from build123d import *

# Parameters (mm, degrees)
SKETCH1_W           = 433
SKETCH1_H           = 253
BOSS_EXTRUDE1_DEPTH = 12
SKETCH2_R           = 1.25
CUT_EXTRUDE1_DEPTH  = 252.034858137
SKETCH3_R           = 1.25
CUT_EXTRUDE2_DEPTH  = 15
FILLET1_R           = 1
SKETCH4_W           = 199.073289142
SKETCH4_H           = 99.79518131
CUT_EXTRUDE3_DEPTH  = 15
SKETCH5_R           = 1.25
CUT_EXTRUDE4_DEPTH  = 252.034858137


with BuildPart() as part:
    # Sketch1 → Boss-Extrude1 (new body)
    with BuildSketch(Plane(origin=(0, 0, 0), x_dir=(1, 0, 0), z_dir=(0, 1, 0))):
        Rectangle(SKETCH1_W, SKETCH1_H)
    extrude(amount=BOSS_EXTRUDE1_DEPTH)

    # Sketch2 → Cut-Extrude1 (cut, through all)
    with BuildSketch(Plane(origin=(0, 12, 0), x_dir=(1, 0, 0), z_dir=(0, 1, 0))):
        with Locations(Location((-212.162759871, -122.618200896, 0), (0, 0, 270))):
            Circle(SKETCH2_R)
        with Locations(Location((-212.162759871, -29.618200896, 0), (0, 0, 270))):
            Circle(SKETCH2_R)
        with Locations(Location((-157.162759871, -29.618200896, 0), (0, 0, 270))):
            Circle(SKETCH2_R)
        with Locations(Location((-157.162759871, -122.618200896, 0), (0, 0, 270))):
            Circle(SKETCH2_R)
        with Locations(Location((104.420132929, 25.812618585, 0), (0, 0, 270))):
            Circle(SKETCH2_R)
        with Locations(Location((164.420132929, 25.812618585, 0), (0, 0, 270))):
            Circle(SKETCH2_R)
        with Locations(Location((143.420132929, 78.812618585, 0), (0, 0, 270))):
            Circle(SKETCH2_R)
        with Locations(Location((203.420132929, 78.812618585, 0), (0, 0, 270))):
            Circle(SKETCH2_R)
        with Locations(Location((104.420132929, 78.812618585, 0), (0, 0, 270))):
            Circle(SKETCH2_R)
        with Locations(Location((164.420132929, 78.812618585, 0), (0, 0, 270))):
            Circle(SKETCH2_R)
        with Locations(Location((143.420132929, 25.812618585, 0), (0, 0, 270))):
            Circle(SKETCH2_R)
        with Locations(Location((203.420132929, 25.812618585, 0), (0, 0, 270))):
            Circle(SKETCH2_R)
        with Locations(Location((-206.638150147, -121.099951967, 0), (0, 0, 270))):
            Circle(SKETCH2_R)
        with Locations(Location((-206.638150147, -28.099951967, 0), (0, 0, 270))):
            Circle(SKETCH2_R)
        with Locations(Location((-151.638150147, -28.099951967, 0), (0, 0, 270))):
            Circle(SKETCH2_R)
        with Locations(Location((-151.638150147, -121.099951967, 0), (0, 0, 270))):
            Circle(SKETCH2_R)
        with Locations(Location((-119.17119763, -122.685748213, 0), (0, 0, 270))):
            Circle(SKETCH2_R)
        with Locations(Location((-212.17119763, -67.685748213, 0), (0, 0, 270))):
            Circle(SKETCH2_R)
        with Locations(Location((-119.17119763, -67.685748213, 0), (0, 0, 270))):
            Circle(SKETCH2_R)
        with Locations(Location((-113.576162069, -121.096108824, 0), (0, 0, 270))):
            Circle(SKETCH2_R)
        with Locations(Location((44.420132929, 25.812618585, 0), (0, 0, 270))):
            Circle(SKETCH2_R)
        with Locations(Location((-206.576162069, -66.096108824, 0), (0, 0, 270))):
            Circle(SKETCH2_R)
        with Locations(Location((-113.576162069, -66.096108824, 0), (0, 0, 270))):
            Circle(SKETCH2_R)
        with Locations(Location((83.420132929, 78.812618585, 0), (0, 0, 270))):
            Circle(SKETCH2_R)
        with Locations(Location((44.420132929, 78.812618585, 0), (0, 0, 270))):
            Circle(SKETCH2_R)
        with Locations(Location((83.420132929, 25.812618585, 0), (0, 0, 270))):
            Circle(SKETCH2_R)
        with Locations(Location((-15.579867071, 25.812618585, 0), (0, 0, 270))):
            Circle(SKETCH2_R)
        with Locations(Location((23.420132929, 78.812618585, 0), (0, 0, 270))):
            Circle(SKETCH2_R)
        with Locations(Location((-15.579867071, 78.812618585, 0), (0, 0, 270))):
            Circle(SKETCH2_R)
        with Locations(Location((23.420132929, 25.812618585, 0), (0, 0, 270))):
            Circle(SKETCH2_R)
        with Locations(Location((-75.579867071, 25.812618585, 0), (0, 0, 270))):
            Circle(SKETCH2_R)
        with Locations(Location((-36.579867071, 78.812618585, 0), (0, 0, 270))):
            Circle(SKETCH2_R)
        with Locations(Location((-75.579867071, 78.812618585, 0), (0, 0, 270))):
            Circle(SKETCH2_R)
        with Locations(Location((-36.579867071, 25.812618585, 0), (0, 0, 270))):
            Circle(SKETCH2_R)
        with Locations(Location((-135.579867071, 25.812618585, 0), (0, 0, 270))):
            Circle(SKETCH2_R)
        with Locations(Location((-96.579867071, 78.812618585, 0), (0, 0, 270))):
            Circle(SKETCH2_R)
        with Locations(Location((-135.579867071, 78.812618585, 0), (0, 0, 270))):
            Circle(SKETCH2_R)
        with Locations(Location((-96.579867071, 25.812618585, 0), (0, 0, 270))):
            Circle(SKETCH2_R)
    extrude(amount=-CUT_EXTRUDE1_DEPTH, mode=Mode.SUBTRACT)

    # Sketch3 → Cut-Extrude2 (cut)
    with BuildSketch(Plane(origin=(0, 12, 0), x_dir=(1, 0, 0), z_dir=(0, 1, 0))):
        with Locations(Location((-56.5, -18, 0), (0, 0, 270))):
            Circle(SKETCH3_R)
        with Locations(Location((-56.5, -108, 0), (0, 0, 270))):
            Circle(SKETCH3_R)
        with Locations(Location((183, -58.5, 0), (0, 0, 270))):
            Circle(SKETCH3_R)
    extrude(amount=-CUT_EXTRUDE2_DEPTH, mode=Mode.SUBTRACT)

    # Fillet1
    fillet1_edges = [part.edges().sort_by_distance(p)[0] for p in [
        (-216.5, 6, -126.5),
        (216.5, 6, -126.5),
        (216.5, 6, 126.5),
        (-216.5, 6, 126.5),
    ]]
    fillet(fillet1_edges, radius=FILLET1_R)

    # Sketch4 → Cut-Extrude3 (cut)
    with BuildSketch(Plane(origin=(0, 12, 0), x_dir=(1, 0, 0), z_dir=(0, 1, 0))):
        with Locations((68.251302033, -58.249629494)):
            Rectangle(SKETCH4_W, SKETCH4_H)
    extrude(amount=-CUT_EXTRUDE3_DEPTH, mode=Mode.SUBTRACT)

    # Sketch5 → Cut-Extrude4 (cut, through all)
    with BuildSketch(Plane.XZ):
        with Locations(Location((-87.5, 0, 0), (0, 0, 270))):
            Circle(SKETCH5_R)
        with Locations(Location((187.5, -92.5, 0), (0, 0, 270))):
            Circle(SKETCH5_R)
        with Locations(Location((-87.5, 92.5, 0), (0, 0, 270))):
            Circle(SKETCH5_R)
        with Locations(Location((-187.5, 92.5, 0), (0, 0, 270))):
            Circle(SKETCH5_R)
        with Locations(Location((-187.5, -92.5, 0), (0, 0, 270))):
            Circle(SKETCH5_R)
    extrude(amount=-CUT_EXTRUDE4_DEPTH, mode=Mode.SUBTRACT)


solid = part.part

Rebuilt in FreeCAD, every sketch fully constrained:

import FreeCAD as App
import Part
import Sketcher
Q = App.Units.Quantity


def edges_at(feature, points):
    """Names of the edges that pass closest to the given points."""
    edges = feature.Shape.Edges
    near = lambda p: min(range(len(edges)), key=lambda i: edges[i].distToShape(Part.Vertex(*p))[0])
    return sorted({f"Edge{near(p) + 1}" for p in points})


def add_polygon(sketch, points):
    """Adds a closed chain of lines whose ends are joined by coincident constraints."""
    first, n = sketch.GeometryCount, len(points)
    for a, b in zip(points, points[1:] + points[:1]):
        sketch.addGeometry(Part.LineSegment(App.Vector(*a, 0), App.Vector(*b, 0)), False)
    for i in range(n):
        sketch.addConstraint(Sketcher.Constraint("Coincident", first + i, 2, first + (i + 1) % n, 1))

doc = App.newDocument("Part")
body = doc.addObject("PartDesign::Body", "Body")

# Sketch on XZ plane
sketch1 = body.newObject("Sketcher::SketchObject", "Sketch")
sketch1.AttachmentSupport = (doc.getObject("XZ_Plane"), [""])
sketch1.MapMode = "FlatFace"
add_polygon(sketch1, [(-216, -126), (-216, 126), (216, 126), (216, -126)])  # lines 0-3
sketch1.addConstraint([
    Sketcher.Constraint("Vertical", 0),
    Sketcher.Constraint("Horizontal", 1),
    Sketcher.Constraint("Vertical", 2),
    Sketcher.Constraint("Horizontal", 3),
    Sketcher.Constraint("Symmetric", 0, 2, 2, 2, -1, 1),
    Sketcher.Constraint("DistanceX", 1, 1, 1, 2, Q("433 mm")),
    Sketcher.Constraint("DistanceY", 0, 1, 0, 2, Q("253 mm")),
])
pad1 = body.newObject("PartDesign::Pad", "Pad")
pad1.Profile = sketch1
pad1.Length = 12
pad1.Reversed = True

# Sketch on XZ plane
sketch2 = body.newObject("Sketcher::SketchObject", "Sketch001")
sketch2.AttachmentSupport = (doc.getObject("XZ_Plane"), [""])
sketch2.MapMode = "FlatFace"
sketch2.AttachmentOffset = App.Placement(App.Vector(0, 0, -12), App.Rotation())
sketch2.addGeometry([
    Part.Circle(App.Vector(-212.2, 122.6, 0), App.Vector(0, 0, 1), 1.2),  # 0
    Part.Circle(App.Vector(-212.2, 29.6, 0), App.Vector(0, 0, 1), 1.2),  # 1
    Part.Circle(App.Vector(-157.2, 29.6, 0), App.Vector(0, 0, 1), 1.2),  # 2
    Part.Circle(App.Vector(-157.2, 122.6, 0), App.Vector(0, 0, 1), 1.2),  # 3
    Part.Circle(App.Vector(104.4, -25.8, 0), App.Vector(0, 0, 1), 1.2),  # 4
    Part.Circle(App.Vector(164.4, -25.8, 0), App.Vector(0, 0, 1), 1.2),  # 5
    Part.Circle(App.Vector(143.4, -78.8, 0), App.Vector(0, 0, 1), 1.2),  # 6
    Part.Circle(App.Vector(203.4, -78.8, 0), App.Vector(0, 0, 1), 1.2),  # 7
    Part.Circle(App.Vector(104.4, -78.8, 0), App.Vector(0, 0, 1), 1.2),  # 8
    Part.Circle(App.Vector(164.4, -78.8, 0), App.Vector(0, 0, 1), 1.2),  # 9
    Part.Circle(App.Vector(143.4, -25.8, 0), App.Vector(0, 0, 1), 1.2),  # 10
    Part.Circle(App.Vector(203.4, -25.8, 0), App.Vector(0, 0, 1), 1.2),  # 11
    Part.Circle(App.Vector(-206.6, 121.1, 0), App.Vector(0, 0, 1), 1.2),  # 12
    Part.Circle(App.Vector(-206.6, 28.1, 0), App.Vector(0, 0, 1), 1.2),  # 13
    Part.Circle(App.Vector(-151.6, 28.1, 0), App.Vector(0, 0, 1), 1.2),  # 14
    Part.Circle(App.Vector(-151.6, 121.1, 0), App.Vector(0, 0, 1), 1.2),  # 15
    Part.Circle(App.Vector(-119.2, 122.7, 0), App.Vector(0, 0, 1), 1.2),  # 16
    Part.Circle(App.Vector(-212.2, 67.7, 0), App.Vector(0, 0, 1), 1.2),  # 17
    Part.Circle(App.Vector(-119.2, 67.7, 0), App.Vector(0, 0, 1), 1.2),  # 18
    Part.Circle(App.Vector(-113.6, 121.1, 0), App.Vector(0, 0, 1), 1.2),  # 19
    Part.Circle(App.Vector(44.4, -25.8, 0), App.Vector(0, 0, 1), 1.2),  # 20
    Part.Circle(App.Vector(-206.6, 66.1, 0), App.Vector(0, 0, 1), 1.2),  # 21
    Part.Circle(App.Vector(-113.6, 66.1, 0), App.Vector(0, 0, 1), 1.2),  # 22
    Part.Circle(App.Vector(83.4, -78.8, 0), App.Vector(0, 0, 1), 1.2),  # 23
    Part.Circle(App.Vector(44.4, -78.8, 0), App.Vector(0, 0, 1), 1.2),  # 24
    Part.Circle(App.Vector(83.4, -25.8, 0), App.Vector(0, 0, 1), 1.2),  # 25
    Part.Circle(App.Vector(-15.6, -25.8, 0), App.Vector(0, 0, 1), 1.2),  # 26
    Part.Circle(App.Vector(23.4, -78.8, 0), App.Vector(0, 0, 1), 1.2),  # 27
    Part.Circle(App.Vector(-15.6, -78.8, 0), App.Vector(0, 0, 1), 1.2),  # 28
    Part.Circle(App.Vector(23.4, -25.8, 0), App.Vector(0, 0, 1), 1.2),  # 29
    Part.Circle(App.Vector(-75.6, -25.8, 0), App.Vector(0, 0, 1), 1.2),  # 30
    Part.Circle(App.Vector(-36.6, -78.8, 0), App.Vector(0, 0, 1), 1.2),  # 31
    Part.Circle(App.Vector(-75.6, -78.8, 0), App.Vector(0, 0, 1), 1.2),  # 32
    Part.Circle(App.Vector(-36.6, -25.8, 0), App.Vector(0, 0, 1), 1.2),  # 33
    Part.Circle(App.Vector(-135.6, -25.8, 0), App.Vector(0, 0, 1), 1.2),  # 34
    Part.Circle(App.Vector(-96.6, -78.8, 0), App.Vector(0, 0, 1), 1.2),  # 35
    Part.Circle(App.Vector(-135.6, -78.8, 0), App.Vector(0, 0, 1), 1.2),  # 36
    Part.Circle(App.Vector(-96.6, -25.8, 0), App.Vector(0, 0, 1), 1.2),  # 37
], False)
sketch2.addConstraint([
    Sketcher.Constraint("Equal", 0, 1),
    Sketcher.Constraint("Equal", 1, 2),
    Sketcher.Constraint("Equal", 2, 3),
    Sketcher.Constraint("Equal", 3, 4),
    Sketcher.Constraint("Equal", 4, 5),
    Sketcher.Constraint("Equal", 5, 6),
    Sketcher.Constraint("Equal", 6, 7),
    Sketcher.Constraint("Equal", 7, 8),
    Sketcher.Constraint("Equal", 8, 9),
    Sketcher.Constraint("Equal", 9, 10),
    Sketcher.Constraint("Equal", 10, 11),
    Sketcher.Constraint("Equal", 11, 12),
    Sketcher.Constraint("Equal", 12, 13),
    Sketcher.Constraint("Equal", 13, 14),
    Sketcher.Constraint("Equal", 14, 15),
    Sketcher.Constraint("Equal", 15, 16),
    Sketcher.Constraint("Equal", 16, 17),
    Sketcher.Constraint("Equal", 17, 18),
    Sketcher.Constraint("Equal", 18, 19),
    Sketcher.Constraint("Equal", 19, 20),
    Sketcher.Constraint("Equal", 20, 21),
    Sketcher.Constraint("Equal", 21, 22),
    Sketcher.Constraint("Equal", 22, 23),
    Sketcher.Constraint("Equal", 23, 24),
    Sketcher.Constraint("Equal", 24, 25),
    Sketcher.Constraint("Equal", 25, 26),
    Sketcher.Constraint("Equal", 26, 27),
    Sketcher.Constraint("Equal", 27, 28),
    Sketcher.Constraint("Equal", 28, 29),
    Sketcher.Constraint("Equal", 29, 30),
    Sketcher.Constraint("Equal", 30, 31),
    Sketcher.Constraint("Equal", 31, 32),
    Sketcher.Constraint("Equal", 32, 33),
    Sketcher.Constraint("Equal", 33, 34),
    Sketcher.Constraint("Equal", 34, 35),
    Sketcher.Constraint("Equal", 35, 36),
    Sketcher.Constraint("Equal", 36, 37),
    Sketcher.Constraint("Horizontal", 1, 3, 2, 3),
    Sketcher.Constraint("Horizontal", 0, 3, 3, 3),
    Sketcher.Constraint("Horizontal", 4, 3, 5, 3),
    Sketcher.Constraint("Horizontal", 6, 3, 7, 3),
    Sketcher.Constraint("Horizontal", 7, 3, 8, 3),
    Sketcher.Constraint("Horizontal", 8, 3, 9, 3),
    Sketcher.Constraint("Horizontal", 5, 3, 10, 3),
    Sketcher.Constraint("Horizontal", 10, 3, 11, 3),
    Sketcher.Constraint("Horizontal", 13, 3, 14, 3),
    Sketcher.Constraint("Horizontal", 12, 3, 15, 3),
    Sketcher.Constraint("Horizontal", 17, 3, 18, 3),
    Sketcher.Constraint("Horizontal", 11, 3, 20, 3),
    Sketcher.Constraint("Horizontal", 21, 3, 22, 3),
    Sketcher.Constraint("Horizontal", 9, 3, 23, 3),
    Sketcher.Constraint("Horizontal", 23, 3, 24, 3),
    Sketcher.Constraint("Horizontal", 20, 3, 25, 3),
    Sketcher.Constraint("Horizontal", 25, 3, 26, 3),
    Sketcher.Constraint("Horizontal", 24, 3, 27, 3),
    Sketcher.Constraint("Horizontal", 27, 3, 28, 3),
    Sketcher.Constraint("Horizontal", 26, 3, 29, 3),
    Sketcher.Constraint("Horizontal", 29, 3, 30, 3),
    Sketcher.Constraint("Horizontal", 28, 3, 31, 3),
    Sketcher.Constraint("Horizontal", 31, 3, 32, 3),
    Sketcher.Constraint("Horizontal", 30, 3, 33, 3),
    Sketcher.Constraint("Horizontal", 33, 3, 34, 3),
    Sketcher.Constraint("Horizontal", 32, 3, 35, 3),
    Sketcher.Constraint("Horizontal", 35, 3, 36, 3),
    Sketcher.Constraint("Horizontal", 34, 3, 37, 3),
    Sketcher.Constraint("Vertical", 0, 3, 1, 3),
    Sketcher.Constraint("Vertical", 2, 3, 3, 3),
    Sketcher.Constraint("Vertical", 4, 3, 8, 3),
    Sketcher.Constraint("Vertical", 5, 3, 9, 3),
    Sketcher.Constraint("Vertical", 6, 3, 10, 3),
    Sketcher.Constraint("Vertical", 7, 3, 11, 3),
    Sketcher.Constraint("Vertical", 12, 3, 13, 3),
    Sketcher.Constraint("Vertical", 14, 3, 15, 3),
    Sketcher.Constraint("Vertical", 16, 3, 18, 3),
    Sketcher.Constraint("Vertical", 19, 3, 22, 3),
    Sketcher.Constraint("Vertical", 20, 3, 24, 3),
    Sketcher.Constraint("Vertical", 23, 3, 25, 3),
    Sketcher.Constraint("Vertical", 26, 3, 28, 3),
    Sketcher.Constraint("Vertical", 27, 3, 29, 3),
    Sketcher.Constraint("Vertical", 30, 3, 32, 3),
    Sketcher.Constraint("Vertical", 31, 3, 33, 3),
    Sketcher.Constraint("Vertical", 34, 3, 36, 3),
    Sketcher.Constraint("Vertical", 35, 3, 37, 3),
    Sketcher.Constraint("Diameter", 0, Q("2.5 mm")),
    Sketcher.Constraint("DistanceY", 1, 3, 0, 3, Q("93 mm")),
    Sketcher.Constraint("DistanceX", 1, 3, 2, 3, Q("55 mm")),
    Sketcher.Constraint("DistanceX", 4, 3, 5, 3, Q("60 mm")),
    Sketcher.Constraint("DistanceX", 6, 3, 5, 3, Q("21 mm")),
    Sketcher.Constraint("DistanceY", 6, 3, 5, 3, Q("53 mm")),
    Sketcher.Constraint("DistanceX", 6, 3, 7, 3, Q("60 mm")),
    Sketcher.Constraint("DistanceY", 13, 3, 12, 3, Q("93 mm")),
    Sketcher.Constraint("DistanceX", 13, 3, 14, 3, Q("55 mm")),
    Sketcher.Constraint("DistanceY", 18, 3, 16, 3, Q("55 mm")),
    Sketcher.Constraint("DistanceX", 20, 3, 4, 3, Q("60 mm")),
    Sketcher.Constraint("DistanceY", 22, 3, 19, 3, Q("55 mm")),
    Sketcher.Constraint("DistanceX", 23, 3, 8, 3, Q("21 mm")),
    Sketcher.Constraint("DistanceX", 26, 3, 20, 3, Q("60 mm")),
    Sketcher.Constraint("DistanceX", 27, 3, 24, 3, Q("21 mm")),
    Sketcher.Constraint("DistanceX", 30, 3, 26, 3, Q("60 mm")),
    Sketcher.Constraint("DistanceX", 31, 3, 28, 3, Q("21 mm")),
    Sketcher.Constraint("DistanceX", 34, 3, 30, 3, Q("60 mm")),
    Sketcher.Constraint("DistanceX", 35, 3, 32, 3, Q("21 mm")),
    Sketcher.Constraint("DistanceY", -1, 1, 0, 3, Q("122.618201 mm")),
    Sketcher.Constraint("DistanceX", 0, 3, -1, 1, Q("212.16276 mm")),
    Sketcher.Constraint("DistanceY", 4, 3, -1, 1, Q("25.812619 mm")),
    Sketcher.Constraint("DistanceX", 12, 3, -1, 1, Q("206.63815 mm")),
    Sketcher.Constraint("DistanceY", -1, 1, 12, 3, Q("121.099952 mm")),
    Sketcher.Constraint("DistanceY", -1, 1, 16, 3, Q("122.685748 mm")),
    Sketcher.Constraint("DistanceY", -1, 1, 19, 3, Q("121.096109 mm")),
    Sketcher.Constraint("DistanceX", 15, 3, 19, 3, Q("38.061988 mm")),
    Sketcher.Constraint("DistanceX", 13, 3, 21, 3, Q("0.061988 mm")),
    Sketcher.Constraint("DistanceX", -1, 1, 4, 3, Q("104.420133 mm")),
    Sketcher.Constraint("DistanceX", 16, 3, -1, 1, Q("119.171198 mm")),
    Sketcher.Constraint("DistanceX", 17, 3, -1, 1, Q("212.171198 mm")),
])
pocket1 = body.newObject("PartDesign::Pocket", "Pocket")
pocket1.Profile = sketch2
pocket1.Type = "ThroughAll"
pocket1.Reversed = True

# Sketch on XZ plane
sketch3 = body.newObject("Sketcher::SketchObject", "Sketch002")
sketch3.AttachmentSupport = (doc.getObject("XZ_Plane"), [""])
sketch3.MapMode = "FlatFace"
sketch3.AttachmentOffset = App.Placement(App.Vector(0, 0, -12), App.Rotation())
sketch3.addGeometry([
    Part.Circle(App.Vector(-56.5, 18, 0), App.Vector(0, 0, 1), 1.2),
    Part.Circle(App.Vector(-56.5, 108, 0), App.Vector(0, 0, 1), 1.2),
    Part.Circle(App.Vector(183, 58.5, 0), App.Vector(0, 0, 1), 1.2),
], False)
sketch3.addConstraint([
    Sketcher.Constraint("Equal", 0, 1),
    Sketcher.Constraint("Equal", 1, 2),
    Sketcher.Constraint("Vertical", 0, 3, 1, 3),
    Sketcher.Constraint("Diameter", 0, Q("2.5 mm")),
    Sketcher.Constraint("DistanceY", -1, 1, 0, 3, Q("18 mm")),
    Sketcher.Constraint("DistanceY", -1, 1, 1, 3, Q("108 mm")),
    Sketcher.Constraint("DistanceX", -1, 1, 2, 3, Q("183 mm")),
    Sketcher.Constraint("DistanceX", 0, 3, -1, 1, Q("56.5 mm")),
    Sketcher.Constraint("DistanceY", -1, 1, 2, 3, Q("58.5 mm")),
])
pocket2 = body.newObject("PartDesign::Pocket", "Pocket001")
pocket2.Profile = sketch3
pocket2.Length = 15
pocket2.Reversed = True
doc.recompute()

fillet = body.newObject("PartDesign::Fillet", "Fillet")
fillet.Base = (pocket2, edges_at(pocket2, [
    (-216.5, 6, -126.5),
    (216.5, 6, -126.5),
    (216.5, 6, 126.5),
    (-216.5, 6, 126.5),
]))
fillet.Radius = 1

# Sketch on XZ plane
sketch4 = body.newObject("Sketcher::SketchObject", "Sketch003")
sketch4.AttachmentSupport = (doc.getObject("XZ_Plane"), [""])
sketch4.MapMode = "FlatFace"
sketch4.AttachmentOffset = App.Placement(App.Vector(0, 0, -12), App.Rotation())
add_polygon(sketch4, [(-31, 8), (-31, 108), (168, 108), (168, 8)])  # lines 0-3
sketch4.addConstraint([
    Sketcher.Constraint("Vertical", 0),
    Sketcher.Constraint("Horizontal", 1),
    Sketcher.Constraint("Vertical", 2),
    Sketcher.Constraint("Horizontal", 3),
    Sketcher.Constraint("DistanceX", 1, 1, 1, 2, Q("199.073289 mm")),
    Sketcher.Constraint("DistanceY", 0, 1, 0, 2, Q("99.795181 mm")),
    Sketcher.Constraint("DistanceY", -1, 1, 0, 2, Q("108.14722 mm")),
    Sketcher.Constraint("DistanceX", 0, 2, -1, 1, Q("31.285343 mm")),
])
pocket3 = body.newObject("PartDesign::Pocket", "Pocket002")
pocket3.Profile = sketch4
pocket3.Length = 15
pocket3.Reversed = True

# Sketch on XZ plane
sketch5 = body.newObject("Sketcher::SketchObject", "Sketch004")
sketch5.AttachmentSupport = (doc.getObject("XZ_Plane"), [""])
sketch5.MapMode = "FlatFace"
sketch5.addGeometry([
    Part.Circle(App.Vector(-87.5, 0, 0), App.Vector(0, 0, 1), 1.2),  # 0
    Part.Circle(App.Vector(187.5, -92.5, 0), App.Vector(0, 0, 1), 1.2),  # 1
    Part.Circle(App.Vector(-87.5, 92.5, 0), App.Vector(0, 0, 1), 1.2),  # 2
    Part.Circle(App.Vector(-187.5, 92.5, 0), App.Vector(0, 0, 1), 1.2),  # 3
    Part.Circle(App.Vector(-187.5, -92.5, 0), App.Vector(0, 0, 1), 1.2),  # 4
], False)
sketch5.addConstraint([
    Sketcher.Constraint("Equal", 0, 1),
    Sketcher.Constraint("Equal", 1, 2),
    Sketcher.Constraint("Equal", 2, 3),
    Sketcher.Constraint("Equal", 3, 4),
    Sketcher.Constraint("Symmetric", 1, 3, 3, 3, -1, 1),
    Sketcher.Constraint("Symmetric", 1, 3, 4, 3, -2),
    Sketcher.Constraint("PointOnObject", 0, 3, -1),
    Sketcher.Constraint("Horizontal", 2, 3, 3, 3),
    Sketcher.Constraint("Vertical", 0, 3, 2, 3),
    Sketcher.Constraint("Diameter", 0, Q("2.5 mm")),
    Sketcher.Constraint("DistanceX", 0, 3, 1, 3, Q("275 mm")),
    Sketcher.Constraint("DistanceY", 1, 3, 2, 3, Q("185 mm")),
    Sketcher.Constraint("DistanceX", 3, 3, 2, 3, Q("100 mm")),
])
pocket4 = body.newObject("PartDesign::Pocket", "Pocket003")
pocket4.Profile = sketch5
pocket4.Type = "ThroughAll"

doc.recompute()
